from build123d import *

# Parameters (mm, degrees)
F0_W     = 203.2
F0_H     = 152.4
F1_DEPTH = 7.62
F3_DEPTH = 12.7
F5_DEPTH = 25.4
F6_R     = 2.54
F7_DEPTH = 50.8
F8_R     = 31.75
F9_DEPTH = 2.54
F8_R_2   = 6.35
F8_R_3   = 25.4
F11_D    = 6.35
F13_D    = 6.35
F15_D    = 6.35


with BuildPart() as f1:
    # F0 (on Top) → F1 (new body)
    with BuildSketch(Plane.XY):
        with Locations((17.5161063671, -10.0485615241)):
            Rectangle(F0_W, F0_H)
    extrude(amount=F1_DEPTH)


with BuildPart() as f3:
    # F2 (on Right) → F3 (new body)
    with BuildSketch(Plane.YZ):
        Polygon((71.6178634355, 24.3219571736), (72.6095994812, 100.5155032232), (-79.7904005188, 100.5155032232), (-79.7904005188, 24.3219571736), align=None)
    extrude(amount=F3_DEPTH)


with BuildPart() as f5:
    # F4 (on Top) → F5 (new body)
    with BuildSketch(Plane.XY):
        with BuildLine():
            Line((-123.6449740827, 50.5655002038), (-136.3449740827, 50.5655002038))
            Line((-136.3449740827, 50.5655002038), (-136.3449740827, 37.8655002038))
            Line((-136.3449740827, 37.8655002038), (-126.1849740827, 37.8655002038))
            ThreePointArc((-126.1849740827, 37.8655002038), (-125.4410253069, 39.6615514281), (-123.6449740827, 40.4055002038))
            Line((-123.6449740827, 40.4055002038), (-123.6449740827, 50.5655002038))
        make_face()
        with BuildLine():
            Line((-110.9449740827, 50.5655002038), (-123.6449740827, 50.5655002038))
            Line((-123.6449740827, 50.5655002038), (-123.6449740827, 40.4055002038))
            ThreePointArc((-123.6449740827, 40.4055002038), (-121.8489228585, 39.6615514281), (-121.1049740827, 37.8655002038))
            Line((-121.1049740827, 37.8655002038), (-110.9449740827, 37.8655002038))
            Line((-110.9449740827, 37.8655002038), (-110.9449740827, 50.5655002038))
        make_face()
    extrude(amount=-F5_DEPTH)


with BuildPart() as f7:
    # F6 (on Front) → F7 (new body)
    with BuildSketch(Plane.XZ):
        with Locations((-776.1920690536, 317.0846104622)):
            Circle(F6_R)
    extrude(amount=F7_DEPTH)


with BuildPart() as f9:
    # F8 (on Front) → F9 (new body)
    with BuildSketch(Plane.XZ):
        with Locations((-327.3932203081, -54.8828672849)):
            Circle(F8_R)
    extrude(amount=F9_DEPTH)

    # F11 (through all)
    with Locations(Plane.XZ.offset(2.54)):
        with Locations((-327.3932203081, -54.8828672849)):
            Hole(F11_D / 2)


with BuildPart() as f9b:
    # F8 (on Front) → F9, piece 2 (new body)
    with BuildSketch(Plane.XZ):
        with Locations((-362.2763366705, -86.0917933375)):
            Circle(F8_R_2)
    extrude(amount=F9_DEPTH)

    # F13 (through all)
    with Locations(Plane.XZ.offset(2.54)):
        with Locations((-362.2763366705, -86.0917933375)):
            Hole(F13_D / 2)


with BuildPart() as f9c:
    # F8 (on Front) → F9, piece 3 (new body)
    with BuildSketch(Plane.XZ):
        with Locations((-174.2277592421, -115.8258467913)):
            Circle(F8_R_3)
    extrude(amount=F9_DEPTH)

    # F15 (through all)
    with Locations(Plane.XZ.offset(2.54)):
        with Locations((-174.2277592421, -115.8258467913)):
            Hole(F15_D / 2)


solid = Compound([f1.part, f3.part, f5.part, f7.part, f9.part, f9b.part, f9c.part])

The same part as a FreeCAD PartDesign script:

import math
import FreeCAD as App
import Part
import Sketcher

V = App.Vector
Q = App.Units.Quantity


def add_polygon(sketch, points):
    """Adds a closed chain of lines whose ends are joined by coincident constraints."""
    first, n = sketch.GeometryCount, len(points)
    for a, b in zip(points, points[1:] + points[:1]):
        sketch.addGeometry(Part.LineSegment(App.Vector(*a, 0), App.Vector(*b, 0)), False)
    for i in range(n):
        sketch.addConstraint(Sketcher.Constraint("Coincident", first + i, 2, first + (i + 1) % n, 1))

doc = App.newDocument("Part")
body = doc.addObject("PartDesign::Body", "Body")

# Sketch on XY plane
sketch1 = doc.addObject("Sketcher::SketchObject", "Sketch")
body.addObject(sketch1)
sketch1.AttachmentSupport = (doc.XY_Plane, [""])
sketch1.MapMode = "FlatFace"
add_polygon(sketch1, [(-84, 66), (-84, -86), (119, -86), (119, 66)])  # lines 0-3
sketch1.addConstraint(Sketcher.Constraint("Vertical", 0))
sketch1.addConstraint(Sketcher.Constraint("Horizontal", 1))
sketch1.addConstraint(Sketcher.Constraint("Vertical", 2))
sketch1.addConstraint(Sketcher.Constraint("Horizontal", 3))
sketch1.addConstraint(Sketcher.Constraint("DistanceX", 1, 1, 1, 2, Q("8 in")))
sketch1.addConstraint(Sketcher.Constraint("DistanceY", 0, 2, 0, 1, Q("6 in")))
sketch1.addConstraint(Sketcher.Constraint("DistanceY", 0, 2, -1, 1, Q("86.248562 mm")))
sketch1.addConstraint(Sketcher.Constraint("DistanceX", 0, 2, -1, 1, Q("84.083894 mm")))
pad1 = doc.addObject("PartDesign::Pad", "Pad")
body.addObject(pad1)
pad1.Profile = sketch1
pad1.Length = Q("0.3 in")
body2 = doc.addObject("PartDesign::Body", "Body001")

# Sketch on YZ plane
sketch2 = doc.addObject("Sketcher::SketchObject", "Sketch001")
body2.addObject(sketch2)
sketch2.AttachmentSupport = (doc.getObject("YZ_Plane001"), [""])
sketch2.MapMode = "FlatFace"
add_polygon(sketch2, [(72, 24), (73, 101), (-80, 101), (-80, 24)])  # lines 0-3
sketch2.addConstraint(Sketcher.Constraint("Horizontal", 1))
sketch2.addConstraint(Sketcher.Constraint("Vertical", 2))
sketch2.addConstraint(Sketcher.Constraint("Horizontal", 3))
sketch2.addConstraint(Sketcher.Constraint("DistanceX", 1, 2, 1, 1, Q("6 in")))
sketch2.addConstraint(Sketcher.Constraint("Distance", 0, Q("3 in")))
sketch2.addConstraint(Sketcher.Constraint("DistanceX", -1, 1, 0, 2, Q("72.609599 mm")))
sketch2.addConstraint(Sketcher.Constraint("DistanceX", 3, 1, 3, 2, Q("151.408264 mm")))
sketch2.addConstraint(Sketcher.Constraint("DistanceY", -1, 1, 0, 2, Q("100.515503 mm")))
pad2 = doc.addObject("PartDesign::Pad", "Pad001")
body2.addObject(pad2)
pad2.Profile = sketch2
pad2.Length = Q("0.5 in")
body3 = doc.addObject("PartDesign::Body", "Body002")

# Sketch on XY plane
sketch3 = doc.addObject("Sketcher::SketchObject", "Sketch002")
body3.addObject(sketch3)
sketch3.AttachmentSupport = (doc.getObject("XY_Plane002"), [""])
sketch3.MapMode = "FlatFace"
sketch3.addGeometry(Part.LineSegment(V(-136.344974, 50.5655, 0), V(-136.344974, 37.8655, 0)), False)
sketch3.addGeometry(Part.LineSegment(V(-136.344974, 37.8655, 0), V(-126.184974, 37.8655, 0)), False)
sketch3.addGeometry(Part.ArcOfCircle(Part.Circle(V(-123.644974, 37.8655, 0), V(0, 0, 1), 2.54), math.radians(90), math.radians(180)), False)
sketch3.addGeometry(Part.ArcOfCircle(Part.Circle(V(-123.644974, 37.8655, 0), V(0, 0, 1), 2.54), math.radians(0), math.radians(90)), False)
sketch3.addGeometry(Part.LineSegment(V(-121.104974, 37.8655, 0), V(-110.944974, 37.8655, 0)), False)
sketch3.addGeometry(Part.LineSegment(V(-110.944974, 37.8655, 0), V(-110.944974, 50.5655, 0)), False)
sketch3.addGeometry(Part.LineSegment(V(-110.944974, 50.5655, 0), V(-136.344974, 50.5655, 0)), False)
sketch3.addConstraint(Sketcher.Constraint("Coincident", 0, 2, 1, 1))
sketch3.addConstraint(Sketcher.Constraint("Coincident", 1, 2, 2, 2))
sketch3.addConstraint(Sketcher.Constraint("Tangent", 2, 1, 3, 2))
sketch3.addConstraint(Sketcher.Constraint("Coincident", 3, 1, 4, 1))
sketch3.addConstraint(Sketcher.Constraint("Coincident", 4, 2, 5, 1))
sketch3.addConstraint(Sketcher.Constraint("Coincident", 5, 2, 6, 1))
sketch3.addConstraint(Sketcher.Constraint("Coincident", 6, 2, 0, 1))
sketch3.addConstraint(Sketcher.Constraint("Vertical", 0))
sketch3.addConstraint(Sketcher.Constraint("Horizontal", 1))
sketch3.addConstraint(Sketcher.Constraint("Horizontal", 4))
sketch3.addConstraint(Sketcher.Constraint("Vertical", 5))
sketch3.addConstraint(Sketcher.Constraint("Horizontal", 6))
sketch3.addConstraint(Sketcher.Constraint("Equal", 2, 3))
sketch3.addConstraint(Sketcher.Constraint("Horizontal", 3, 3, 0, 2))
sketch3.addConstraint(Sketcher.Constraint("Horizontal", 1, 2, 3, 1))
sketch3.addConstraint(Sketcher.Constraint("Vertical", 3, 3, 2, 1))
sketch3.addConstraint(Sketcher.Constraint("Equal", 1, 4))
sketch3.addConstraint(Sketcher.Constraint("Radius", 2, Q("0.1 in")))
sketch3.addConstraint(Sketcher.Constraint("DistanceX", 6, 2, 6, 1, Q("1 in")))
sketch3.addConstraint(Sketcher.Constraint("DistanceY", 0, 2, 0, 1, Q("0.5 in")))
sketch3.addConstraint(Sketcher.Constraint("DistanceY", -1, 1, 2, 3, Q("37.8655 mm")))
sketch3.addConstraint(Sketcher.Constraint("DistanceX", 2, 3, -1, 1, Q("123.644974 mm")))
pad3 = doc.addObject("PartDesign::Pad", "Pad002")
body3.addObject(pad3)
pad3.Profile = sketch3
pad3.Length = Q("1 in")
pad3.Reversed = True
body4 = doc.addObject("PartDesign::Body", "Body003")

# Sketch on XZ plane
sketch4 = doc.addObject("Sketcher::SketchObject", "Sketch003")
body4.addObject(sketch4)
sketch4.AttachmentSupport = (doc.getObject("XZ_Plane003"), [""])
sketch4.MapMode = "FlatFace"
sketch4.addGeometry(Part.Circle(V(-776.2, 317.1, 0), V(0, 0, 1), 2.5), False)
sketch4.addConstraint(Sketcher.Constraint("Diameter", 0, Q("0.2 in")))
sketch4.addConstraint(Sketcher.Constraint("DistanceX", 0, 3, -1, 1, Q("776.192069 mm")))
sketch4.addConstraint(Sketcher.Constraint("DistanceY", -1, 1, 0, 3, Q("317.08461 mm")))
pad4 = doc.addObject("PartDesign::Pad", "Pad003")
body4.addObject(pad4)
pad4.Profile = sketch4
pad4.Length = Q("2 in")
body5 = doc.addObject("PartDesign::Body", "Body004")

# Sketch on XZ plane
sketch5 = doc.addObject("Sketcher::SketchObject", "Sketch004")
body5.addObject(sketch5)
sketch5.AttachmentSupport = (doc.getObject("XZ_Plane004"), [""])
sketch5.MapMode = "FlatFace"
sketch5.addGeometry(Part.Circle(V(-327, -55, 0), V(0, 0, 1), 32), False)
sketch5.addConstraint(Sketcher.Constraint("Diameter", 0, Q("2.5 in")))
sketch5.addConstraint(Sketcher.Constraint("DistanceX", 0, 3, -1, 1, Q("327.39322 mm")))
sketch5.addConstraint(Sketcher.Constraint("DistanceY", 0, 3, -1, 1, Q("54.882867 mm")))
pad5 = doc.addObject("PartDesign::Pad", "Pad004")
body5.addObject(pad5)
pad5.Profile = sketch5
pad5.Length = Q("0.1 in")

# Sketch on XZ plane
sketch6 = doc.addObject("Sketcher::SketchObject", "Sketch005")
body5.addObject(sketch6)
sketch6.AttachmentSupport = (doc.getObject("XZ_Plane004"), [""])
sketch6.MapMode = "FlatFace"
sketch6.AttachmentOffset = App.Placement(V(0, 0, 0.1 * 25.4), App.Rotation())
sketch6.addGeometry(Part.Circle(V(-327.4, -54.9, 0), V(0, 0, 1), 3.2), False)
sketch6.addConstraint(Sketcher.Constraint("Diameter", 0, Q("0.25 in")))
sketch6.addConstraint(Sketcher.Constraint("DistanceX", 0, 3, -1, 1, Q("327.39322 mm")))
sketch6.addConstraint(Sketcher.Constraint("DistanceY", 0, 3, -1, 1, Q("54.882867 mm")))
doc.recompute()
hole = doc.addObject("PartDesign::Hole", "Hole")
body5.addObject(hole)
hole.Profile = sketch6
hole.ThreadType = "None"
hole.Diameter = Q("0.25 in")
hole.DepthType = "ThroughAll"
body6 = doc.addObject("PartDesign::Body", "Body005")

# Sketch on XZ plane
sketch7 = doc.addObject("Sketcher::SketchObject", "Sketch006")
body6.addObject(sketch7)
sketch7.AttachmentSupport = (doc.getObject("XZ_Plane005"), [""])
sketch7.MapMode = "FlatFace"
sketch7.addGeometry(Part.Circle(V(-362, -86, 0), V(0, 0, 1), 6), False)
sketch7.addConstraint(Sketcher.Constraint("Diameter", 0, Q("0.5 in")))
sketch7.addConstraint(Sketcher.Constraint("DistanceX", 0, 3, -1, 1, Q("362.276337 mm")))
sketch7.addConstraint(Sketcher.Constraint("DistanceY", 0, 3, -1, 1, Q("86.091793 mm")))
pad6 = doc.addObject("PartDesign::Pad", "Pad005")
body6.addObject(pad6)
pad6.Profile = sketch7
pad6.Length = Q("0.1 in")

# Sketch on XZ plane
sketch8 = doc.addObject("Sketcher::SketchObject", "Sketch007")
body6.addObject(sketch8)
sketch8.AttachmentSupport = (doc.getObject("XZ_Plane005"), [""])
sketch8.MapMode = "FlatFace"
sketch8.AttachmentOffset = App.Placement(V(0, 0, 0.1 * 25.4), App.Rotation())
sketch8.addGeometry(Part.Circle(V(-362.3, -86.1, 0), V(0, 0, 1), 3.2), False)
sketch8.addConstraint(Sketcher.Constraint("Diameter", 0, Q("0.25 in")))
sketch8.addConstraint(Sketcher.Constraint("DistanceX", 0, 3, -1, 1, Q("362.276337 mm")))
sketch8.addConstraint(Sketcher.Constraint("DistanceY", 0, 3, -1, 1, Q("86.091793 mm")))
doc.recompute()
hole2 = doc.addObject("PartDesign::Hole", "Hole001")
body6.addObject(hole2)
hole2.Profile = sketch8
hole2.ThreadType = "None"
hole2.Diameter = Q("0.25 in")
hole2.DepthType = "ThroughAll"
body7 = doc.addObject("PartDesign::Body", "Body006")

# Sketch on XZ plane
sketch9 = doc.addObject("Sketcher::SketchObject", "Sketch008")
body7.addObject(sketch9)
sketch9.AttachmentSupport = (doc.getObject("XZ_Plane006"), [""])
sketch9.MapMode = "FlatFace"
sketch9.addGeometry(Part.Circle(V(-174, -116, 0), V(0, 0, 1), 25), False)
sketch9.addConstraint(Sketcher.Constraint("Diameter", 0, Q("2 in")))
sketch9.addConstraint(Sketcher.Constraint("DistanceX", 0, 3, -1, 1, Q("174.227759 mm")))
sketch9.addConstraint(Sketcher.Constraint("DistanceY", 0, 3, -1, 1, Q("115.825847 mm")))
pad7 = doc.addObject("PartDesign::Pad", "Pad006")
body7.addObject(pad7)
pad7.Profile = sketch9
pad7.Length = Q("0.1 in")

# Sketch on XZ plane
sketch10 = doc.addObject("Sketcher::SketchObject", "Sketch009")
body7.addObject(sketch10)
sketch10.AttachmentSupport = (doc.getObject("XZ_Plane006"), [""])
sketch10.MapMode = "FlatFace"
sketch10.AttachmentOffset = App.Placement(V(0, 0, 0.1 * 25.4), App.Rotation())
sketch10.addGeometry(Part.Circle(V(-174.2, -115.8, 0), V(0, 0, 1), 3.2), False)
sketch10.addConstraint(Sketcher.Constraint("Diameter", 0, Q("0.25 in")))
sketch10.addConstraint(Sketcher.Constraint("DistanceX", 0, 3, -1, 1, Q("174.227759 mm")))
sketch10.addConstraint(Sketcher.Constraint("DistanceY", 0, 3, -1, 1, Q("115.825847 mm")))
doc.recompute()
hole3 = doc.addObject("PartDesign::Hole", "Hole002")
body7.addObject(hole3)
hole3.Profile = sketch10
hole3.ThreadType = "None"
hole3.Diameter = Q("0.25 in")
hole3.DepthType = "ThroughAll"

doc.recompute()
